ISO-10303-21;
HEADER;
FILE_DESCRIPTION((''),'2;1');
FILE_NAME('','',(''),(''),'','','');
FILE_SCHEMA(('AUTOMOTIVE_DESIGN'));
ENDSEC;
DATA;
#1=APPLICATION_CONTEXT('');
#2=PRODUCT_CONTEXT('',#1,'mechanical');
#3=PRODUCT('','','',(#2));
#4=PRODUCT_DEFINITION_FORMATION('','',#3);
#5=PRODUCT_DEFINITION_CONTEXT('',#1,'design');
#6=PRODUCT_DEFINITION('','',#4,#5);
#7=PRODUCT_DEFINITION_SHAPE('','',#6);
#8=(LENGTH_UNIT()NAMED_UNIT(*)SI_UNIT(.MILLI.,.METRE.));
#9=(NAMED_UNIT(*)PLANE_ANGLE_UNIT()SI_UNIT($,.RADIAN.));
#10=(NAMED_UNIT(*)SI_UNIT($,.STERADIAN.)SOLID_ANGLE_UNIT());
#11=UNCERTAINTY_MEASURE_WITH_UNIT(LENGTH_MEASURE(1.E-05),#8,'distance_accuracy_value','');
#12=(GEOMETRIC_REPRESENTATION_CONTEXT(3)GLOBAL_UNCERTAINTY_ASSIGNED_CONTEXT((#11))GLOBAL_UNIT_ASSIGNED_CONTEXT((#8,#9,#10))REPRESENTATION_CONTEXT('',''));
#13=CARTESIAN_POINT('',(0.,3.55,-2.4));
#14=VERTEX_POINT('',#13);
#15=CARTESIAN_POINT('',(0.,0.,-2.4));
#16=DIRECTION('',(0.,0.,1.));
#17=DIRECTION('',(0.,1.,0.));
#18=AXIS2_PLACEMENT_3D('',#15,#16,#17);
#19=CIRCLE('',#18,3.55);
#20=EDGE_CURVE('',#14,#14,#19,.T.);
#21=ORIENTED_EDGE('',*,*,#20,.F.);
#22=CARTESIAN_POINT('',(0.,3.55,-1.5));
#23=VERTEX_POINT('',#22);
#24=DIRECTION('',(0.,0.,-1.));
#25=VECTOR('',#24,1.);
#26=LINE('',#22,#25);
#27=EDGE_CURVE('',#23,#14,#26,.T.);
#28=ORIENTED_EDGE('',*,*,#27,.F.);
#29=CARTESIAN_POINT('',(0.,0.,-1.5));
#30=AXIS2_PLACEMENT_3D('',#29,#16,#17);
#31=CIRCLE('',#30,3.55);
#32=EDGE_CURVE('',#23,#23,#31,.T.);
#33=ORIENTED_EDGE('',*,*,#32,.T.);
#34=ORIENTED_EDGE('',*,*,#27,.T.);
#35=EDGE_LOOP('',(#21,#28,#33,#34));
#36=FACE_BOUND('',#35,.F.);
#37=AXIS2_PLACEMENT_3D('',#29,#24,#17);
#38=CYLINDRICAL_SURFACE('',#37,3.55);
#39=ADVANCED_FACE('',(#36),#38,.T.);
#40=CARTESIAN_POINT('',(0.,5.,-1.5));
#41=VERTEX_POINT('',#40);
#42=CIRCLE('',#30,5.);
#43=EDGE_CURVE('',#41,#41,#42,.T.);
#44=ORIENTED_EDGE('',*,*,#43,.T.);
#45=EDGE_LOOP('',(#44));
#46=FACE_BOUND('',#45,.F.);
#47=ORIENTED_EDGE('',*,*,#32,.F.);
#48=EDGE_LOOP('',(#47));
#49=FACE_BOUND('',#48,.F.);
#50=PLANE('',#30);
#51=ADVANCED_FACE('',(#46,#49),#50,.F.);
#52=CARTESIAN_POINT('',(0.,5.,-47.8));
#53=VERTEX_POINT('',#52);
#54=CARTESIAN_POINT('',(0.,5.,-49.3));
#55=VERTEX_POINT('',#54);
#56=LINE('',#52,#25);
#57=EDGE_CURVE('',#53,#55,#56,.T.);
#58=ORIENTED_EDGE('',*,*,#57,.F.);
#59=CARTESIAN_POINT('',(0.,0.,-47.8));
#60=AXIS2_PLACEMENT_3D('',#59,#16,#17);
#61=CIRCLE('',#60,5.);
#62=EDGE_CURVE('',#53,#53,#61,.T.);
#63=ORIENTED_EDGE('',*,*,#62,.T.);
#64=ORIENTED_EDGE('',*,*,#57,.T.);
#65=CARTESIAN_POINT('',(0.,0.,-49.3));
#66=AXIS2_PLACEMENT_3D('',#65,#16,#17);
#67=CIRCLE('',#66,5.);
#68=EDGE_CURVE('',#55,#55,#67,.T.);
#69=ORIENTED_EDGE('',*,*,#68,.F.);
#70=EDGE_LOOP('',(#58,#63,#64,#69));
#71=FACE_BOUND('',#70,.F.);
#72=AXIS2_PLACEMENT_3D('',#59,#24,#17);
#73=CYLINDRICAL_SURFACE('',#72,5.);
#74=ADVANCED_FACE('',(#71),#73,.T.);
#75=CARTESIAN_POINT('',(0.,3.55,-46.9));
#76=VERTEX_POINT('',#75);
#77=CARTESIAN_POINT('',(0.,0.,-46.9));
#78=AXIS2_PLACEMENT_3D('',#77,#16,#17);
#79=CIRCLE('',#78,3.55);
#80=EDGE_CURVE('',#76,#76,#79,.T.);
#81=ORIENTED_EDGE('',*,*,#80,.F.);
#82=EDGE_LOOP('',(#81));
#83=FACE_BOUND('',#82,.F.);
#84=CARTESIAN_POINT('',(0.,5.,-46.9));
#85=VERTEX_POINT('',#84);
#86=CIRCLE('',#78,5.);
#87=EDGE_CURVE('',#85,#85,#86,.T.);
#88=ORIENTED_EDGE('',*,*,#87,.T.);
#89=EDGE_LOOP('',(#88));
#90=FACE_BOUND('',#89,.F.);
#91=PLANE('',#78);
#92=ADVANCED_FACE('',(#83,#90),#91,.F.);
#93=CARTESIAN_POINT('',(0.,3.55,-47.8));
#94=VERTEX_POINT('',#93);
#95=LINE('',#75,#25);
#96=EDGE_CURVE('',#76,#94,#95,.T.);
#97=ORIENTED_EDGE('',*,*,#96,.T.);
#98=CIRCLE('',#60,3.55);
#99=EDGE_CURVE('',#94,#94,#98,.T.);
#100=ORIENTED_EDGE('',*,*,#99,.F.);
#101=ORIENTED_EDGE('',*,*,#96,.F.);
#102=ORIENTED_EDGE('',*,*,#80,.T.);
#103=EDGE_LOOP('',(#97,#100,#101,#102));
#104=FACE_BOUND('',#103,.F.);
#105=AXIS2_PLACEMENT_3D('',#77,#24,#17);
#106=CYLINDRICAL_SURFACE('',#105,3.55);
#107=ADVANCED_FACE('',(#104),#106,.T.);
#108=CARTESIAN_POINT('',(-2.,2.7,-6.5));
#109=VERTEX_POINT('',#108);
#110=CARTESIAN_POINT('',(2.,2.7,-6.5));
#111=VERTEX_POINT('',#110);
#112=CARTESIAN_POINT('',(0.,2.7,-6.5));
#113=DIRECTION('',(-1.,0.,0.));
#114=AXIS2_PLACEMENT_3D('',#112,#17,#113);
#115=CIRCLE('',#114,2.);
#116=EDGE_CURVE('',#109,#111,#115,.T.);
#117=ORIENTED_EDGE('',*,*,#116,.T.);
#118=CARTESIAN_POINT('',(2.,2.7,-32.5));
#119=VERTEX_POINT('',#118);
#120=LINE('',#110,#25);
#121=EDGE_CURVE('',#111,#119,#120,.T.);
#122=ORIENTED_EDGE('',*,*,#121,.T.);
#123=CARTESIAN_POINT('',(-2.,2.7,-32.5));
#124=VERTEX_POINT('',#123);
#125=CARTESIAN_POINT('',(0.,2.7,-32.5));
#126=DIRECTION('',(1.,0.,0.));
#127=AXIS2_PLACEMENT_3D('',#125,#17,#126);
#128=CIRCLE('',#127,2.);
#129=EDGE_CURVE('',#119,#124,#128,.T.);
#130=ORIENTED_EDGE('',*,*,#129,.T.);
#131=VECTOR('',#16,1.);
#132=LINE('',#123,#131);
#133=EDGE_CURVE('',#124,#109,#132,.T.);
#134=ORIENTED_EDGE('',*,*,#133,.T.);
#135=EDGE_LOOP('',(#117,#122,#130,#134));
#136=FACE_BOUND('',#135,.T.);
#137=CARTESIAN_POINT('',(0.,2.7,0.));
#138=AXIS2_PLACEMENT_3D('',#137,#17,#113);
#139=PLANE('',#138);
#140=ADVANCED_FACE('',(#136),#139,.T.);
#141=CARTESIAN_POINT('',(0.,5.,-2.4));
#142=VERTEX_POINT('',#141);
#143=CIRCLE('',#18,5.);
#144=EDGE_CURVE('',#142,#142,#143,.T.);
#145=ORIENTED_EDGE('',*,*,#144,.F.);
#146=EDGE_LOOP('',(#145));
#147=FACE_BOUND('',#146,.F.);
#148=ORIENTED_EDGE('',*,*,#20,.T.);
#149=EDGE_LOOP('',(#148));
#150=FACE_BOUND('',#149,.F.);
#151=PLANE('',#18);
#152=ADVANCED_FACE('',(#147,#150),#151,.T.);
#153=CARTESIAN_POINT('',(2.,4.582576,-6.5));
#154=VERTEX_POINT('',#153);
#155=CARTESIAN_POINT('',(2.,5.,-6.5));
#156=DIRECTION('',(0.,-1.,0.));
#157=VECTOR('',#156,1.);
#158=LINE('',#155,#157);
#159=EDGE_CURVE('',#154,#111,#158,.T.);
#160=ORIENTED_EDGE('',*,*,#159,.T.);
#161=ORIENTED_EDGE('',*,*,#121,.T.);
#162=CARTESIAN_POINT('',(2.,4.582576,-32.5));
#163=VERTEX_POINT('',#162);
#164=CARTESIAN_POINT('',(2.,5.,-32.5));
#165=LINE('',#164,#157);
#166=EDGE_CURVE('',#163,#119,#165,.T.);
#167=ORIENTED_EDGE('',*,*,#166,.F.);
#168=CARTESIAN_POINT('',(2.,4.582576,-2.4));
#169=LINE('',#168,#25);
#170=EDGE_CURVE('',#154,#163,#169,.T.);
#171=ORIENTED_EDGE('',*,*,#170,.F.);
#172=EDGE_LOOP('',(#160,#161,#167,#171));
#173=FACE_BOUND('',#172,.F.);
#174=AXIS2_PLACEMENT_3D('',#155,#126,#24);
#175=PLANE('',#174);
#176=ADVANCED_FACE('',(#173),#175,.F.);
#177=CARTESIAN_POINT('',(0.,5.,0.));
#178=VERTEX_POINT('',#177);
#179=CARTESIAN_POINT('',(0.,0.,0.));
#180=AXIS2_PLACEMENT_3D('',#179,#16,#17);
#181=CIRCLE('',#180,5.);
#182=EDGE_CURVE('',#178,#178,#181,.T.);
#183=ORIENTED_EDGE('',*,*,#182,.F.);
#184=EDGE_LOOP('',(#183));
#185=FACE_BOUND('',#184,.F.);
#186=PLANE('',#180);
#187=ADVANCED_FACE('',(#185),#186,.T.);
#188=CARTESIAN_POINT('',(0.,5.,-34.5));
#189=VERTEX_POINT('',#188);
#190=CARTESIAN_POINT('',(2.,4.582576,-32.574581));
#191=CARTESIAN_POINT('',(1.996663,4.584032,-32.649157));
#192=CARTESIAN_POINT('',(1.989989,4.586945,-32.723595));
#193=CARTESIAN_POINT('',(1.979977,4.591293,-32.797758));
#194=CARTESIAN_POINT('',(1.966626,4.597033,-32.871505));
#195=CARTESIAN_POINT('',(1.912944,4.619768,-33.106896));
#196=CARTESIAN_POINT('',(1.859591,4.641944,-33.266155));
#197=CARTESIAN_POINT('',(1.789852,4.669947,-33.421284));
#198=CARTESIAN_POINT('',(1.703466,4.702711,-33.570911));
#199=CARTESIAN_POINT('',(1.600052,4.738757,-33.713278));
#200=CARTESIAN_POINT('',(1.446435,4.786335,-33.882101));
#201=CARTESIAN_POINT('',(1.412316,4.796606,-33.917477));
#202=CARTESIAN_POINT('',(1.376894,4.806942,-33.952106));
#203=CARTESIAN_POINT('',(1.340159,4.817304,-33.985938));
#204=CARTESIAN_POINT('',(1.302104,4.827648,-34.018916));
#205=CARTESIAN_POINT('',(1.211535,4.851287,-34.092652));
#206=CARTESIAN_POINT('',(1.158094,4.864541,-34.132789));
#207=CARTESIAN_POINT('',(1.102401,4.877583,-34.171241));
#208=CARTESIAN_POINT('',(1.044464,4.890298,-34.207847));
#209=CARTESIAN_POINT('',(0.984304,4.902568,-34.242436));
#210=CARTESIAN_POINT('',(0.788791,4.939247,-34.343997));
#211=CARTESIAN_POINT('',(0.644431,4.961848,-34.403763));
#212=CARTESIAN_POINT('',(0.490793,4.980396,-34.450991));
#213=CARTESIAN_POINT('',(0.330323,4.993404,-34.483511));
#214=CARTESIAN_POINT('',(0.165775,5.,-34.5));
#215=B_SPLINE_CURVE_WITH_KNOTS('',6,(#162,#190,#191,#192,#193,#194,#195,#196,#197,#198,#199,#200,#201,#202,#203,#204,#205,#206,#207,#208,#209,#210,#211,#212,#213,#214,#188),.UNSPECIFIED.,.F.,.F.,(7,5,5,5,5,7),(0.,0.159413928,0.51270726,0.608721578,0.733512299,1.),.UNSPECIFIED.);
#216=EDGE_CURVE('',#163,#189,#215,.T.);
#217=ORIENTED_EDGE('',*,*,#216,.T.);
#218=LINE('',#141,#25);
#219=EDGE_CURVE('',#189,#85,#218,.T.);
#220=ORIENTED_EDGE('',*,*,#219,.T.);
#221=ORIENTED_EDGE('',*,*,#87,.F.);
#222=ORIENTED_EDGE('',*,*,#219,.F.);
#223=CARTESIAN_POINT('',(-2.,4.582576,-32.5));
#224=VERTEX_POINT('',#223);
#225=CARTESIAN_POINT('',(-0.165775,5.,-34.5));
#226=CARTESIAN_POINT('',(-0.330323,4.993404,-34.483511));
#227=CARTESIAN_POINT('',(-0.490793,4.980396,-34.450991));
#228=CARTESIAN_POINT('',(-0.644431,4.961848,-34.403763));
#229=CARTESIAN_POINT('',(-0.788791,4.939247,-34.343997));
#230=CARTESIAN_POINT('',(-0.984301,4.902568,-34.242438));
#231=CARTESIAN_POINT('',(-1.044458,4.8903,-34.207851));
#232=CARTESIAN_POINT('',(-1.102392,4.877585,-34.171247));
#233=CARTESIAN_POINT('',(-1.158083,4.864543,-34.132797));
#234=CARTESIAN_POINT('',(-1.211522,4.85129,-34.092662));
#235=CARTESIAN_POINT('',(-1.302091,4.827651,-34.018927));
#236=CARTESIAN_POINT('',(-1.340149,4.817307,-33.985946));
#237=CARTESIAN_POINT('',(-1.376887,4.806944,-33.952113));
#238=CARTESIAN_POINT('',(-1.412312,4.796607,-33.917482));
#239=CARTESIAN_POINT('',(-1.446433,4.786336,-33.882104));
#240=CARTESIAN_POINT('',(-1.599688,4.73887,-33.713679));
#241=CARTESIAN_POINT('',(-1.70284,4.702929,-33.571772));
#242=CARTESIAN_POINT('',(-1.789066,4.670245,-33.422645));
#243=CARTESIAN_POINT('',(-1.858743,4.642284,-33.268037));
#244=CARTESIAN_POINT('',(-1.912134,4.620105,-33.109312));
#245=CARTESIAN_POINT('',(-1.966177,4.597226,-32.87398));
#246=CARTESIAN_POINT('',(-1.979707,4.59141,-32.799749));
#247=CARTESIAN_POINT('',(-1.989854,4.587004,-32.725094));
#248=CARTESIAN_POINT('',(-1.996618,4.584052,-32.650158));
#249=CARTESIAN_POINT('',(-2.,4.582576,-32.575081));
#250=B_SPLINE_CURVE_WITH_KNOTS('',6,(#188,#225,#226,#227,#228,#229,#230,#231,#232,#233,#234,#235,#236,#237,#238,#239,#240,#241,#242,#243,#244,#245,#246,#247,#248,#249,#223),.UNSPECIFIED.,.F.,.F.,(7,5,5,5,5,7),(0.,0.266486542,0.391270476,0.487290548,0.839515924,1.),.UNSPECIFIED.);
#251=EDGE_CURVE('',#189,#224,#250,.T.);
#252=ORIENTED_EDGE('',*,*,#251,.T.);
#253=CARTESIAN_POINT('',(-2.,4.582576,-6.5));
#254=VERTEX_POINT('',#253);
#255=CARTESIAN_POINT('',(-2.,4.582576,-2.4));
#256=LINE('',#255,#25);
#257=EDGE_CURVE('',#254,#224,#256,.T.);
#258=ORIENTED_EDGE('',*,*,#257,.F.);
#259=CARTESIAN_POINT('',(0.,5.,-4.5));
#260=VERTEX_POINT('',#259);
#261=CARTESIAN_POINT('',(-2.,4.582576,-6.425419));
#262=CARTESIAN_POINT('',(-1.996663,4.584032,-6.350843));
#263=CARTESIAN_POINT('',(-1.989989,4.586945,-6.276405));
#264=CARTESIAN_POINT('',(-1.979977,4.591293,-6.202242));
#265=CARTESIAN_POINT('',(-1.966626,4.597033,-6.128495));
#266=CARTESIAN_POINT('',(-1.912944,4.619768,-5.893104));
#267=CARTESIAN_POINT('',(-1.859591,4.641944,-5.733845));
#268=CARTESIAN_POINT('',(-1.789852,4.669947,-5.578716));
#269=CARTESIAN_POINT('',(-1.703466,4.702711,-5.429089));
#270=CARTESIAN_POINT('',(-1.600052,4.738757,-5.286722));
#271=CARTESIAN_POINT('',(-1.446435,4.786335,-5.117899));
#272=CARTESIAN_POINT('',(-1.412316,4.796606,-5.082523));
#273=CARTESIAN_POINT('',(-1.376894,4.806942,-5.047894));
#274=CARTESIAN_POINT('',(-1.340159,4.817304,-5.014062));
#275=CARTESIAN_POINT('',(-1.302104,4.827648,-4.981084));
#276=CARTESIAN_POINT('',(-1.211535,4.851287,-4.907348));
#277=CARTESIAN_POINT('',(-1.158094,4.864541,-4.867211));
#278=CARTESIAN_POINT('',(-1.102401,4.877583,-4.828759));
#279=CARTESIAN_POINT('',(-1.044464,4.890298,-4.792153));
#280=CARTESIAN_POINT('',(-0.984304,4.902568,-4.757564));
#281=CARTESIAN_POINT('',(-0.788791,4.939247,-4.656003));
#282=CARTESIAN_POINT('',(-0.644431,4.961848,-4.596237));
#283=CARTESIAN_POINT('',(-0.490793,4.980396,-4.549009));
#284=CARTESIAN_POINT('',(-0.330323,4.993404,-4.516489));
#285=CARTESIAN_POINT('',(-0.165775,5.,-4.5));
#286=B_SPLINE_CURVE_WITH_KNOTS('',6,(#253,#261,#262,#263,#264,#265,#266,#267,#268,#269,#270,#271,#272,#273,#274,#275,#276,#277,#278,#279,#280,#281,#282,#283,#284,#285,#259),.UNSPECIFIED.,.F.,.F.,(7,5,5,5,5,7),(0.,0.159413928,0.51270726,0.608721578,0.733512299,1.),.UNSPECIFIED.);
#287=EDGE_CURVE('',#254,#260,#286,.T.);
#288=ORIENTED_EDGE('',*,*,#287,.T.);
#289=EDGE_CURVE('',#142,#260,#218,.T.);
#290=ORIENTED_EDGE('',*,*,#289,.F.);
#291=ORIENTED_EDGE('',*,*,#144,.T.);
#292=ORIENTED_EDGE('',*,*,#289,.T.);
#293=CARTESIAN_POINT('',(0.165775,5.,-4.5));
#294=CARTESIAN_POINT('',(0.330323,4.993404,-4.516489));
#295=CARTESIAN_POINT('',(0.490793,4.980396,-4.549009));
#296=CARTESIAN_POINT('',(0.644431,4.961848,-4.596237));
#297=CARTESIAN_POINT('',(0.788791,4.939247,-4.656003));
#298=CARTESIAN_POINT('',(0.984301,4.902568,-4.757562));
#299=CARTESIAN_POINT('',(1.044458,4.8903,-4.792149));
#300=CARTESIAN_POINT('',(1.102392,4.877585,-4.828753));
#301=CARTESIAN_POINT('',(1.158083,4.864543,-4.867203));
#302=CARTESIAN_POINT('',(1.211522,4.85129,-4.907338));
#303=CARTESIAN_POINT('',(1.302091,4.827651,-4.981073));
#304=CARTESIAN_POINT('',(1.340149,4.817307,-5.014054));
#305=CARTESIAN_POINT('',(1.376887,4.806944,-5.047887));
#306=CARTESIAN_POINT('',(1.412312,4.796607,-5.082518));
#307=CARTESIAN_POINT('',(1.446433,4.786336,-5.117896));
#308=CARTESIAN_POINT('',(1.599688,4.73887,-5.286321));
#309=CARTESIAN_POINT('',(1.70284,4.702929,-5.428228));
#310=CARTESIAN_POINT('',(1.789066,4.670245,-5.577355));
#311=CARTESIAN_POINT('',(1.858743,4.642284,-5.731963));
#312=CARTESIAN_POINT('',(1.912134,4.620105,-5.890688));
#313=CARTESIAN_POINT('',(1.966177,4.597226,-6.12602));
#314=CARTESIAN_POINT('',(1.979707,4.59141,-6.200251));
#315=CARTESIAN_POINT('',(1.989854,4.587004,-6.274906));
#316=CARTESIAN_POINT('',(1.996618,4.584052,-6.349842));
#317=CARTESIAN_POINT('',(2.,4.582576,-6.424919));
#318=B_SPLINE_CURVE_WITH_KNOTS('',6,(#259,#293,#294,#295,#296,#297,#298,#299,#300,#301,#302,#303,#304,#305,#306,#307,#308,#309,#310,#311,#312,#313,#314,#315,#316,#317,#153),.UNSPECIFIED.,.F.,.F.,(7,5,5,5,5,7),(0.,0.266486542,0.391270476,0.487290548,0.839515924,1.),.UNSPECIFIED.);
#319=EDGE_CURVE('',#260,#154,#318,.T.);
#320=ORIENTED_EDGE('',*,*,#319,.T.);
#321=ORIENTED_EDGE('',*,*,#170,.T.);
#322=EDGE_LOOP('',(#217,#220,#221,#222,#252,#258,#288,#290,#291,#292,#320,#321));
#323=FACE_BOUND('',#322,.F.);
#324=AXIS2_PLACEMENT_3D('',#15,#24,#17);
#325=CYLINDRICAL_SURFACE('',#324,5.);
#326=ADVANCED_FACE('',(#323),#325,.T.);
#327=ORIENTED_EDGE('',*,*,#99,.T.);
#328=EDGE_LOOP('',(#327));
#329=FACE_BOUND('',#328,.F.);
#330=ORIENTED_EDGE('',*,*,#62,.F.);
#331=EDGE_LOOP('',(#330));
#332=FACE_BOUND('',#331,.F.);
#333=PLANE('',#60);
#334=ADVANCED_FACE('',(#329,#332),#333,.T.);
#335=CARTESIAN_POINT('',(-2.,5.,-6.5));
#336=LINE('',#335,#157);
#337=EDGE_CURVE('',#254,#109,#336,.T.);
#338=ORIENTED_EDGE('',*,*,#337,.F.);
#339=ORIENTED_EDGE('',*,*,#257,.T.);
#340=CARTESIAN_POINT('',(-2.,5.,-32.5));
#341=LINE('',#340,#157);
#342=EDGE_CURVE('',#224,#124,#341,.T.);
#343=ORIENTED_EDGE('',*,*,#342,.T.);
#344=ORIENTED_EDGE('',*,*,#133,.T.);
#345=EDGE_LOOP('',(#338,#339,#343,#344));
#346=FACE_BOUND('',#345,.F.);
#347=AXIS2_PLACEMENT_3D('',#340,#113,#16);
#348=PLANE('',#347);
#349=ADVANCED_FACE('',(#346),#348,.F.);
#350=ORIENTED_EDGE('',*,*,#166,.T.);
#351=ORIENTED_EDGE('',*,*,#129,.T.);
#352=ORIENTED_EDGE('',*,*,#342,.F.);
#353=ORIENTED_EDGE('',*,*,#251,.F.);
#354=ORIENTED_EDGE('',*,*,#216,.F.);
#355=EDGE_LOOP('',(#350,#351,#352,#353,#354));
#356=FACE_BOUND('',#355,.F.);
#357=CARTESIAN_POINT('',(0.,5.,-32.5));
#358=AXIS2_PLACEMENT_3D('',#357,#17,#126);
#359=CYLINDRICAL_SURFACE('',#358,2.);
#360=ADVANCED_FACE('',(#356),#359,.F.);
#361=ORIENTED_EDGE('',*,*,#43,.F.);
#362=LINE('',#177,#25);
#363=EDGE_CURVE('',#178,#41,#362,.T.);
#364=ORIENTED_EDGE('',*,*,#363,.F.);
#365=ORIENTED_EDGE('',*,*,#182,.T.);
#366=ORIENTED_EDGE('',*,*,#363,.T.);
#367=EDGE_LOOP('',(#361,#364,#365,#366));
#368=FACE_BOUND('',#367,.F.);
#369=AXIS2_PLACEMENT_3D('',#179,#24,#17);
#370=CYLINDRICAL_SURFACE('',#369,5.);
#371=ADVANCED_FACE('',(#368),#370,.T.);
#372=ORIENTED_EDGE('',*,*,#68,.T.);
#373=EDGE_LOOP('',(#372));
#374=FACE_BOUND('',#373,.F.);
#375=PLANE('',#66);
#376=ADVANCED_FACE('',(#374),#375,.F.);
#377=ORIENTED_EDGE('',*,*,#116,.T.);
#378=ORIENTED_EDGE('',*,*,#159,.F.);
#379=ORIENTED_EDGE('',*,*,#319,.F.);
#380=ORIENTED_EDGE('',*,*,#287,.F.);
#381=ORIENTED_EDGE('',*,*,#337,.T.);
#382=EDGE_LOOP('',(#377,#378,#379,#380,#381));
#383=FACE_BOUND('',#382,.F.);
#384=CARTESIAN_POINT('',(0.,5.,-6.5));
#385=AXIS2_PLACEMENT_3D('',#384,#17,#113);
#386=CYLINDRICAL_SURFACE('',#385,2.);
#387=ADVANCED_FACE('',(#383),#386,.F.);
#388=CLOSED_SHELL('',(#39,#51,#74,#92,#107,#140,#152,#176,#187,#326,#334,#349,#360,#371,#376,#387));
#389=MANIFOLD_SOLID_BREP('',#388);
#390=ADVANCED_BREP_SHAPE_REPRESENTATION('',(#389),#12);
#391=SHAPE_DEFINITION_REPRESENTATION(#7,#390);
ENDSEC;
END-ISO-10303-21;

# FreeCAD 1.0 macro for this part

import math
import FreeCAD as App
import Part
import Sketcher
Q = App.Units.Quantity


def add_polygon(sketch, points):
    """Adds a closed chain of lines whose ends are joined by coincident constraints."""
    first, n = sketch.GeometryCount, len(points)
    for a, b in zip(points, points[1:] + points[:1]):
        sketch.addGeometry(Part.LineSegment(App.Vector(*a, 0), App.Vector(*b, 0)), False)
    for i in range(n):
        sketch.addConstraint(Sketcher.Constraint("Coincident", first + i, 2, first + (i + 1) % n, 1))

doc = App.newDocument("Part")
params = doc.addObject("Spreadsheet::Sheet", "Params")
for row, (alias, value) in enumerate([
    ("sketch1_height", "49.3 mm"),
    ("sketch1_height2", "1.5 mm"),
    ("sketch1_height3", "0.9 mm"),
    ("sketch1_width", "5 mm"),
    ("sketch1_width2", "1.45 mm"),
    ("revolution_angle", "360 deg"),
    ("sketch2_radius", "2 mm"),
    ("sketch2_height", "26 mm"),
    ("pocket1_length", "2.3 mm"),
], start=1):
    params.set(f"A{row}", alias)
    params.set(f"B{row}", "=" + value)
    params.setAlias(f"B{row}", alias)

body = doc.addObject("PartDesign::Body", "Body")

# Sketch on YZ plane
sketch1 = body.newObject("Sketcher::SketchObject", "Sketch")
sketch1.AttachmentSupport = (doc.getObject("YZ_Plane"), [""])
sketch1.MapMode = "FlatFace"
add_polygon(sketch1, [(5, 0), (0, 0), (0, -49.3), (5, -49.3), (5, -47.8), (3.55, -47.8), (3.55, -46.9), (5, -46.9), (5, -2.4), (3.55, -2.4), (3.55, -1.5), (5, -1.5)])  # lines 0-11
sketch1.addConstraint(Sketcher.Constraint("Horizontal", 0))
sketch1.addConstraint(Sketcher.Constraint("Vertical", 1))
sketch1.addConstraint(Sketcher.Constraint("Horizontal", 2))
sketch1.addConstraint(Sketcher.Constraint("Vertical", 3))
sketch1.addConstraint(Sketcher.Constraint("Horizontal", 4))
sketch1.addConstraint(Sketcher.Constraint("Vertical", 5))
sketch1.addConstraint(Sketcher.Constraint("Horizontal", 6))
sketch1.addConstraint(Sketcher.Constraint("Vertical", 7))
sketch1.addConstraint(Sketcher.Constraint("Horizontal", 8))
sketch1.addConstraint(Sketcher.Constraint("Vertical", 9))
sketch1.addConstraint(Sketcher.Constraint("Horizontal", 10))
sketch1.addConstraint(Sketcher.Constraint("Vertical", 11))
sketch1.addConstraint(Sketcher.Constraint("Coincident", 0, 2, -1, 1))
sketch1.addConstraint(Sketcher.Constraint("Vertical", 3, 2, 6, 2))
sketch1.addConstraint(Sketcher.Constraint("Vertical", 5, 2, 8, 2))
sketch1.addConstraint(Sketcher.Constraint("Vertical", 7, 2, 10, 2))
sketch1.addConstraint(Sketcher.Constraint("Equal", 5, 9))
sketch1.addConstraint(Sketcher.Constraint("Equal", 3, 11))
sketch1.addConstraint(Sketcher.Constraint("DistanceY", 1, 2, 1, 1, Q("49.3 mm")))
sketch1.addConstraint(Sketcher.Constraint("DistanceY", 3, 1, 3, 2, Q("1.5 mm")))
sketch1.addConstraint(Sketcher.Constraint("DistanceY", 5, 1, 5, 2, Q("0.9 mm")))
sketch1.addConstraint(Sketcher.Constraint("DistanceX", 0, 2, 0, 1, Q("5 mm")))
sketch1.addConstraint(Sketcher.Constraint("DistanceX", 4, 2, 4, 1, Q("1.45 mm")))
sketch1.setExpression("Constraints[30]", "Params.sketch1_height")
sketch1.setExpression("Constraints[31]", "Params.sketch1_height2")
sketch1.setExpression("Constraints[32]", "Params.sketch1_height3")
sketch1.setExpression("Constraints[33]", "Params.sketch1_width")
sketch1.setExpression("Constraints[34]", "Params.sketch1_width2")
revolution = body.newObject("PartDesign::Revolution", "Revolution")
revolution.Profile = sketch1
revolution.ReferenceAxis = (sketch1, ["V_Axis"])
revolution.setExpression("Angle", "Params.revolution_angle")

# Sketch on XZ plane
sketch2 = body.newObject("Sketcher::SketchObject", "Sketch001")
sketch2.AttachmentSupport = (doc.getObject("XZ_Plane"), [""])
sketch2.MapMode = "FlatFace"
sketch2.AttachmentOffset = App.Placement(App.Vector(0, 0, -5), App.Rotation())
sketch2.addGeometry(Part.ArcOfCircle(Part.Circle(App.Vector(0, -6.5, 0), App.Vector(0, 0, 1), 2), math.radians(0), math.radians(180)), False)
sketch2.addGeometry(Part.LineSegment(App.Vector(2, -6.5, 0), App.Vector(2, -32.5, 0)), False)
sketch2.addGeometry(Part.ArcOfCircle(Part.Circle(App.Vector(0, -32.5, 0), App.Vector(0, 0, 1), 2), math.radians(180), math.radians(360)), False)
sketch2.addGeometry(Part.LineSegment(App.Vector(-2, -32.5, 0), App.Vector(-2, -6.5, 0)), False)
sketch2.addConstraint(Sketcher.Constraint("Tangent", 0, 1, 1, 1))
sketch2.addConstraint(Sketcher.Constraint("Tangent", 1, 2, 2, 2))
sketch2.addConstraint(Sketcher.Constraint("Tangent", 2, 1, 3, 1))
sketch2.addConstraint(Sketcher.Constraint("Tangent", 3, 2, 0, 2))
sketch2.addConstraint(Sketcher.Constraint("Vertical", 1))
sketch2.addConstraint(Sketcher.Constraint("Vertical", 3))
sketch2.addConstraint(Sketcher.Constraint("PointOnObject", 0, 3, -2))
sketch2.addConstraint(Sketcher.Constraint("Radius", 0, Q("2 mm")))
sketch2.addConstraint(Sketcher.Constraint("DistanceY", 1, 2, 1, 1, Q("26 mm")))
sketch2.addConstraint(Sketcher.Constraint("DistanceY", 0, 3, -1, 1, Q("6.5 mm")))
sketch2.setExpression("Constraints[7]", "Params.sketch2_radius")
sketch2.setExpression("Constraints[8]", "Params.sketch2_height")
pocket1 = body.newObject("PartDesign::Pocket", "Pocket")
pocket1.Profile = sketch2
pocket1.setExpression("Length", "Params.pocket1_length")
pocket1.Reversed = True

doc.recompute()
